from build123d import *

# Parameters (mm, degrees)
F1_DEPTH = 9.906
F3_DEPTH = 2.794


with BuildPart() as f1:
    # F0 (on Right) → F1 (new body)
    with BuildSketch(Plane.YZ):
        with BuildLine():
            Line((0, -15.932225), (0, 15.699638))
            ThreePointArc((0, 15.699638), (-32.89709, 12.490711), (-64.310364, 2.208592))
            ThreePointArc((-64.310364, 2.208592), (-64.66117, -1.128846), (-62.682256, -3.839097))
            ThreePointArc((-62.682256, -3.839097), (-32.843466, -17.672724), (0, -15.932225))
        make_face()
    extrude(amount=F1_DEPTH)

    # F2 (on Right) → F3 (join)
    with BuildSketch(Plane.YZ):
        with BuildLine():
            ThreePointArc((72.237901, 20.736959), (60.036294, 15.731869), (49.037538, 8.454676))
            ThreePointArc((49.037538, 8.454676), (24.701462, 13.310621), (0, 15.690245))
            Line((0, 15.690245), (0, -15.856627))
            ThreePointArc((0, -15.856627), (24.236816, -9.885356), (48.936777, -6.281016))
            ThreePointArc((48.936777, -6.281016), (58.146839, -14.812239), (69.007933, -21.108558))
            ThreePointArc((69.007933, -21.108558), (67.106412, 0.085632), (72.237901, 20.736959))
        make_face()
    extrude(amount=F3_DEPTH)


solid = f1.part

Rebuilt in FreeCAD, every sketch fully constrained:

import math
import FreeCAD as App
import Part
import Sketcher
from FreeCAD import Vector
Q = App.Units.Quantity

doc = App.newDocument("Part")
body = doc.addObject("PartDesign::Body", "Body")

# Sketch on YZ plane
sketch1 = body.newObject("Sketcher::SketchObject", "Sketch")
sketch1.AttachmentSupport = (doc.getObject("YZ_Plane"), [""])
sketch1.MapMode = "FlatFace"
sketch1.addGeometry(Part.LineSegment(Vector(0, -15.932225, 0), Vector(0, 15.699638, 0)), False)
sketch1.addGeometry(Part.ArcOfCircle(Part.Circle(Vector(-1.860558, -135.457096, 0), Vector(0, 0, 1), 151.168184), math.radians(89.294793), math.radians(114.400649)), False)
sketch1.addGeometry(Part.ArcOfCircle(Part.Circle(Vector(-60.153961, 0.084547, 0), Vector(0, 0, 1), 4.667682), math.radians(152.931619), math.radians(237.203309)), False)
sketch1.addGeometry(Part.ArcOfCircle(Part.Circle(Vector(-19.924286, 49.291205, 0), Vector(0, 0, 1), 68.198775), math.radians(-128.826262), math.radians(-73.01327)), False)
sketch1.addConstraint(Sketcher.Constraint("Coincident", 0, 2, 1, 1))
sketch1.addConstraint(Sketcher.Constraint("Coincident", 1, 2, 2, 1))
sketch1.addConstraint(Sketcher.Constraint("Coincident", 2, 2, 3, 1))
sketch1.addConstraint(Sketcher.Constraint("Coincident", 3, 2, 0, 1))
sketch1.addConstraint(Sketcher.Constraint("Vertical", 0))
sketch1.addConstraint(Sketcher.Constraint("PointOnObject", 0, 2, -2))
sketch1.addConstraint(Sketcher.Constraint("Radius", 2, Q("4.667682 mm")))
sketch1.addConstraint(Sketcher.Constraint("Radius", 1, Q("151.168184 mm")))
sketch1.addConstraint(Sketcher.Constraint("Radius", 3, Q("68.198775 mm")))
sketch1.addConstraint(Sketcher.Constraint("DistanceY", 1, 3, 3, 3, Q("184.748301 mm")))
sketch1.addConstraint(Sketcher.Constraint("DistanceY", 2, 2, 3, 3, Q("53.130302 mm")))
sketch1.addConstraint(Sketcher.Constraint("DistanceY", 0, 1, 0, 2, Q("31.631863 mm")))
sketch1.addConstraint(Sketcher.Constraint("DistanceX", 1, 3, -1, 1, Q("1.860558 mm")))
sketch1.addConstraint(Sketcher.Constraint("DistanceX", 2, 3, -1, 1, Q("60.153961 mm")))
sketch1.addConstraint(Sketcher.Constraint("DistanceY", -1, 1, 1, 2, Q("2.208592 mm")))
pad1 = body.newObject("PartDesign::Pad", "Pad")
pad1.Profile = sketch1
pad1.Length = Q("0.39 in")

# Sketch on YZ plane
sketch2 = body.newObject("Sketcher::SketchObject", "Sketch001")
sketch2.AttachmentSupport = (doc.getObject("YZ_Plane"), [""])
sketch2.MapMode = "FlatFace"
sketch2.addGeometry(Part.ArcOfCircle(Part.Circle(Vector(91.690503, -44.060692, 0), Vector(0, 0, 1), 67.654559), math.radians(106.710038), math.radians(129.083493)), False)
sketch2.addGeometry(Part.ArcOfCircle(Part.Circle(Vector(-11.210612, -230.075857, 0), Vector(0, 0, 1), 246.021655), math.radians(75.824689), math.radians(87.388266)), False)
sketch2.addGeometry(Part.LineSegment(Vector(0, 15.690245, 0), Vector(0, -15.856627, 0)), False)
sketch2.addGeometry(Part.ArcOfCircle(Part.Circle(Vector(73.847025, -263.421523, 0), Vector(0, 0, 1), 258.344268), math.radians(95.53321), math.radians(106.609505)), False)
sketch2.addGeometry(Part.ArcOfCircle(Part.Circle(Vector(91.850283, 30.810096, 0), Vector(0, 0, 1), 56.72142), math.radians(-139.162404), math.radians(-113.747777)), False)
sketch2.addGeometry(Part.ArcOfCircle(Part.Circle(Vector(131.108544, -4.854559, 0), Vector(0, 0, 1), 64.19251), math.radians(156.505047), math.radians(194.667373)), False)
sketch2.addConstraint(Sketcher.Constraint("Coincident", 0, 2, 1, 1))
sketch2.addConstraint(Sketcher.Constraint("Coincident", 1, 2, 2, 1))
sketch2.addConstraint(Sketcher.Constraint("Coincident", 2, 2, 3, 2))
sketch2.addConstraint(Sketcher.Constraint("Coincident", 3, 1, 4, 1))
sketch2.addConstraint(Sketcher.Constraint("Coincident", 4, 2, 5, 2))
sketch2.addConstraint(Sketcher.Constraint("Coincident", 5, 1, 0, 1))
sketch2.addConstraint(Sketcher.Constraint("Vertical", 2))
sketch2.addConstraint(Sketcher.Constraint("PointOnObject", 1, 2, -2))
sketch2.addConstraint(Sketcher.Constraint("Radius", 0, Q("67.654559 mm")))
sketch2.addConstraint(Sketcher.Constraint("Radius", 3, Q("258.344268 mm")))
sketch2.addConstraint(Sketcher.Constraint("Radius", 4, Q("56.72142 mm")))
sketch2.addConstraint(Sketcher.Constraint("Radius", 5, Q("64.19251 mm")))
sketch2.addConstraint(Sketcher.Constraint("Radius", 1, Q("246.021655 mm")))
sketch2.addConstraint(Sketcher.Constraint("DistanceX", 0, 2, 5, 1, Q("0.9134001 in")))
sketch2.addConstraint(Sketcher.Constraint("DistanceY", 3, 1, 5, 1, Q("1.0636998 in")))
sketch2.addConstraint(Sketcher.Constraint("DistanceX", -1, 1, 5, 1, Q("72.237901 mm")))
sketch2.addConstraint(Sketcher.Constraint("DistanceY", 1, 3, 5, 3, Q("225.221299 mm")))
sketch2.addConstraint(Sketcher.Constraint("DistanceY", 3, 3, 0, 2, Q("271.876199 mm")))
sketch2.addConstraint(Sketcher.Constraint("DistanceY", 4, 2, 5, 3, Q("16.253999 mm")))
sketch2.addConstraint(Sketcher.Constraint("DistanceY", 2, 2, 2, 1, Q("31.546872 mm")))
sketch2.addConstraint(Sketcher.Constraint("DistanceX", 1, 3, -1, 1, Q("11.210612 mm")))
sketch2.addConstraint(Sketcher.Constraint("DistanceY", 5, 3, -1, 1, Q("4.854559 mm")))
sketch2.addConstraint(Sketcher.Constraint("DistanceX", 3, 3, 0, 3, Q("17.843479 mm")))
pad2 = body.newObject("PartDesign::Pad", "Pad001")
pad2.Profile = sketch2
pad2.Length = Q("0.11 in")

doc.recompute()
